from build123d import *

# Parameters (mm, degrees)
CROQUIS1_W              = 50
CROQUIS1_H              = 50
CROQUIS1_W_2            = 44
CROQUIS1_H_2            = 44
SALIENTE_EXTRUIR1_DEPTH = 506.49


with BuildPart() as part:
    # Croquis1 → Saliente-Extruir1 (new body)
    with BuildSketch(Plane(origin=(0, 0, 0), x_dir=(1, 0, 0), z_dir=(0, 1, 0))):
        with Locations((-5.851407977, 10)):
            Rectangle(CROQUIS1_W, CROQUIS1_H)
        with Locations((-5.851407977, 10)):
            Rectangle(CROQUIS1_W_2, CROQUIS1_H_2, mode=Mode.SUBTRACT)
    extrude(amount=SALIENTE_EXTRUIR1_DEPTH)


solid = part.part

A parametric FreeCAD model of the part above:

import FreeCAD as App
import Part
import Sketcher

doc = App.newDocument("Part")
body = doc.addObject("PartDesign::Body", "Body")

# Sketch on XZ plane
sketch1 = body.newObject("Sketcher::SketchObject", "Sketch")
sketch1.AttachmentSupport = (doc.getObject("XZ_Plane"), [""])
sketch1.MapMode = "FlatFace"
sketch1.addGeometry(Part.LineSegment(App.Vector(-31, -35, 0), App.Vector(-31, 15, 0)), False)
sketch1.addGeometry(Part.LineSegment(App.Vector(-31, 15, 0), App.Vector(19, 15, 0)), False)
sketch1.addGeometry(Part.LineSegment(App.Vector(19, 15, 0), App.Vector(19, -35, 0)), False)
sketch1.addGeometry(Part.LineSegment(App.Vector(19, -35, 0), App.Vector(-31, -35, 0)), False)
sketch1.addGeometry(Part.LineSegment(App.Vector(16, 12, 0), App.Vector(-28, 12, 0)), False)
sketch1.addGeometry(Part.LineSegment(App.Vector(-28, 12, 0), App.Vector(-28, -32, 0)), False)
sketch1.addGeometry(Part.LineSegment(App.Vector(-28, -32, 0), App.Vector(16, -32, 0)), False)
sketch1.addGeometry(Part.LineSegment(App.Vector(16, -32, 0), App.Vector(16, 12, 0)), False)
sketch1.addConstraint(Sketcher.Constraint("Coincident", 0, 2, 1, 1))
sketch1.addConstraint(Sketcher.Constraint("Coincident", 1, 2, 2, 1))
sketch1.addConstraint(Sketcher.Constraint("Coincident", 2, 2, 3, 1))
sketch1.addConstraint(Sketcher.Constraint("Coincident", 3, 2, 0, 1))
sketch1.addConstraint(Sketcher.Constraint("Coincident", 4, 2, 5, 1))
sketch1.addConstraint(Sketcher.Constraint("Coincident", 5, 2, 6, 1))
sketch1.addConstraint(Sketcher.Constraint("Coincident", 6, 2, 7, 1))
sketch1.addConstraint(Sketcher.Constraint("Coincident", 7, 2, 4, 1))
sketch1.addConstraint(Sketcher.Constraint("Vertical", 0))
sketch1.addConstraint(Sketcher.Constraint("Horizontal", 1))
sketch1.addConstraint(Sketcher.Constraint("Vertical", 2))
sketch1.addConstraint(Sketcher.Constraint("Horizontal", 3))
sketch1.addConstraint(Sketcher.Constraint("Horizontal", 4))
sketch1.addConstraint(Sketcher.Constraint("Vertical", 5))
sketch1.addConstraint(Sketcher.Constraint("Horizontal", 6))
sketch1.addConstraint(Sketcher.Constraint("Vertical", 7))
sketch1.addConstraint(Sketcher.Constraint("Equal", 3, 0))
sketch1.addConstraint(Sketcher.Constraint("Equal", 6, 5))
sketch1.addConstraint(Sketcher.Constraint("DistanceX", 1, 1, 1, 2, 50.0))
sketch1.addConstraint(Sketcher.Constraint("DistanceX", 4, 2, 4, 1, 44.0))
sketch1.addConstraint(Sketcher.Constraint("DistanceY", -1, 1, 0, 2, 15.0))
sketch1.addConstraint(Sketcher.Constraint("DistanceY", -1, 1, 4, 2, 12.0))
sketch1.addConstraint(Sketcher.Constraint("DistanceX", 0, 2, 4, 2, 3.0))
sketch1.addConstraint(Sketcher.Constraint("DistanceX", 0, 2, -1, 1, 30.851408))
pad1 = body.newObject("PartDesign::Pad", "Pad")
pad1.Profile = sketch1
pad1.Length = 506.49
pad1.Reversed = True

doc.recompute()
